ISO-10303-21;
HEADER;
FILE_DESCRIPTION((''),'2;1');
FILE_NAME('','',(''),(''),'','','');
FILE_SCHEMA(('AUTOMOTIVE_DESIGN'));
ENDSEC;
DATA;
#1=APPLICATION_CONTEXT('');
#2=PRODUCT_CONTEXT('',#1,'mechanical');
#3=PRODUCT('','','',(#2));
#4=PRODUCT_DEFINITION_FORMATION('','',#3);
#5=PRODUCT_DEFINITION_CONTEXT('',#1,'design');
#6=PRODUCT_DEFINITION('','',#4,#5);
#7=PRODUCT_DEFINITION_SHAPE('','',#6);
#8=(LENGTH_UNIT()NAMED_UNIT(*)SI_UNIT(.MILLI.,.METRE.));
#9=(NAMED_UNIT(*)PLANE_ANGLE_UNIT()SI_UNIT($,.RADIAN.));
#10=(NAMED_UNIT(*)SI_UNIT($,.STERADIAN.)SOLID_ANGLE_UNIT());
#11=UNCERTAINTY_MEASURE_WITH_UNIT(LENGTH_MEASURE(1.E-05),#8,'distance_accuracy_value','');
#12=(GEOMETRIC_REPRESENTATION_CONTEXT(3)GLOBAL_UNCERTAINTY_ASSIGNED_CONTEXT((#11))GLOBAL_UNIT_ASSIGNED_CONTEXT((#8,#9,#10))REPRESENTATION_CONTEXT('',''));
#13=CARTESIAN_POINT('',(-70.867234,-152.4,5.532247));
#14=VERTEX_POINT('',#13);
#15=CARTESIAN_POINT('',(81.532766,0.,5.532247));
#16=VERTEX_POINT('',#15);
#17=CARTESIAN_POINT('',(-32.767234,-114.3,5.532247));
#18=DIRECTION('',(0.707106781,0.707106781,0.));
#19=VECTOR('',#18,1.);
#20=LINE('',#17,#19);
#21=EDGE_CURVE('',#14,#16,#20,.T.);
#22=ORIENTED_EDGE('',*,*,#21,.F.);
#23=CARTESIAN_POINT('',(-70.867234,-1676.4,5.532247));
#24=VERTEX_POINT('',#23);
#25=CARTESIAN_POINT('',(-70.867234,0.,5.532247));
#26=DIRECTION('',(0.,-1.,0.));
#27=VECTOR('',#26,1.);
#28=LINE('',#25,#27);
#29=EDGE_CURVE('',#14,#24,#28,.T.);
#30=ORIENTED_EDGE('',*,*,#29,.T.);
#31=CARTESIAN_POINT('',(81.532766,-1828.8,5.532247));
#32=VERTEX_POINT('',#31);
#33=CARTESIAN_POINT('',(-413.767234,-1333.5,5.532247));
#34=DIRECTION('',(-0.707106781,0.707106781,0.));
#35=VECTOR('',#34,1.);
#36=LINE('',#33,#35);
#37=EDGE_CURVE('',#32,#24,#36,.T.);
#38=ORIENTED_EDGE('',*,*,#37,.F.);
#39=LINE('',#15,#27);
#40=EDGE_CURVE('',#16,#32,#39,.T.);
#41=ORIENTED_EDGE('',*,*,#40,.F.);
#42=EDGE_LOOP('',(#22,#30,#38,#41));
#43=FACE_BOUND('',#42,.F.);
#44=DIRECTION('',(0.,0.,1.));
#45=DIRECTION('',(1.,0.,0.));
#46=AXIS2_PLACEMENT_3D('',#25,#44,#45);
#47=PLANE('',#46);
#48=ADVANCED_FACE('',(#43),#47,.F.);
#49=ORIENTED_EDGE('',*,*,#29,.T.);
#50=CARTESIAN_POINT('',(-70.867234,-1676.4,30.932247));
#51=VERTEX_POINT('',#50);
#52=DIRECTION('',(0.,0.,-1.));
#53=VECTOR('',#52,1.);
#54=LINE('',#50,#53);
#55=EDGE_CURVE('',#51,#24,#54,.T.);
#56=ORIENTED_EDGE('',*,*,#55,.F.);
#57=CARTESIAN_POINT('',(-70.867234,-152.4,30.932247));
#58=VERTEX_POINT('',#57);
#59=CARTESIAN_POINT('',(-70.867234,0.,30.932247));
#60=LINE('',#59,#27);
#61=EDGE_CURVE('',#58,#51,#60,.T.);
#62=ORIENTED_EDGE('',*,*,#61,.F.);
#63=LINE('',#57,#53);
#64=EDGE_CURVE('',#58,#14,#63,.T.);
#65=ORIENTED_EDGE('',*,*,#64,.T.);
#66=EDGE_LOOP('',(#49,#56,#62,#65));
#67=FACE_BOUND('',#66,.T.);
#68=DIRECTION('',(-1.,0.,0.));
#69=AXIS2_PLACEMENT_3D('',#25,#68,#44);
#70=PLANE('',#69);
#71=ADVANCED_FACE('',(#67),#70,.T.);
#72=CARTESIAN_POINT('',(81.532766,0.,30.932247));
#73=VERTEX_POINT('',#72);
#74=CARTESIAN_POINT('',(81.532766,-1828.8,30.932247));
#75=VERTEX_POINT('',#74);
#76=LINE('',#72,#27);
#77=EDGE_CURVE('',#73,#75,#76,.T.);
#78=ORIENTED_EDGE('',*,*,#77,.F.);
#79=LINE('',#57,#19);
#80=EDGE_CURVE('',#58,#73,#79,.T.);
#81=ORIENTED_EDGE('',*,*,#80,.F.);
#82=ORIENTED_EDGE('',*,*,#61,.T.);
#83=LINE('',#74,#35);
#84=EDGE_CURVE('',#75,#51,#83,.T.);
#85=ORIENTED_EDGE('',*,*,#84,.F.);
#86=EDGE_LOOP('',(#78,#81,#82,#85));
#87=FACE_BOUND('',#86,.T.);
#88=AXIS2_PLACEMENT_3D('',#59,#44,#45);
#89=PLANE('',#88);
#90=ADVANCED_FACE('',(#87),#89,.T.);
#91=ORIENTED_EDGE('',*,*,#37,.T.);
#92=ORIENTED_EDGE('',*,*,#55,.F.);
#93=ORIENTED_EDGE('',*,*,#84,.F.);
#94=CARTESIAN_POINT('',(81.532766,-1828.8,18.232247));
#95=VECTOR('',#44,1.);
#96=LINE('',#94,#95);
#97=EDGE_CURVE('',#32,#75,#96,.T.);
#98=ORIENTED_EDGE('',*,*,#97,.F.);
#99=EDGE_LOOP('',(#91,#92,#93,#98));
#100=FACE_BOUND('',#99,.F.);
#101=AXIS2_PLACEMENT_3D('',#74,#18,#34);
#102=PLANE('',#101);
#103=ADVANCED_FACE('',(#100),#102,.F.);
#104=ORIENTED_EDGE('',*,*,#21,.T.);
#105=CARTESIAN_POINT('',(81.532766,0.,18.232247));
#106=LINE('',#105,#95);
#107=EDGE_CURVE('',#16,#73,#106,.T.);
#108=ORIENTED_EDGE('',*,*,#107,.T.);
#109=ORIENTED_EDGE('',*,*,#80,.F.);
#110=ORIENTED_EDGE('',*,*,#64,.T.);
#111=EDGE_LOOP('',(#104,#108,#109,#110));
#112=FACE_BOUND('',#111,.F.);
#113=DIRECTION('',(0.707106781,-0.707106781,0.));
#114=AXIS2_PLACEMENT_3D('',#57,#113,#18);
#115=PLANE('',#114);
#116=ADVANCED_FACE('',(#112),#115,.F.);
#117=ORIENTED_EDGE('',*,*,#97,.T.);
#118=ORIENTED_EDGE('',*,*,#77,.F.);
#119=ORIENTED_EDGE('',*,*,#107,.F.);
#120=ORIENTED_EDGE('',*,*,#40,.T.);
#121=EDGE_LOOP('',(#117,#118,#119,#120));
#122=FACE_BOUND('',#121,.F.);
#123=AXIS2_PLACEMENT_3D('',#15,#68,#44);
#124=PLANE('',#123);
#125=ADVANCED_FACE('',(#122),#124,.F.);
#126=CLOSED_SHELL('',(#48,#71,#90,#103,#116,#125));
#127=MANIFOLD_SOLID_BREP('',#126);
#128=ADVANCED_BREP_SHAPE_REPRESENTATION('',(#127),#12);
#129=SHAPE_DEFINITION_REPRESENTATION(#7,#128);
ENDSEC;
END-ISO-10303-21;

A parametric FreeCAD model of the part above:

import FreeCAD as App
import Part
import Sketcher

V = App.Vector
Q = App.Units.Quantity

doc = App.newDocument("Part")
params = doc.addObject("Spreadsheet::Sheet", "Params")
for row, (alias, value) in enumerate([
    ("sketch1_width", "6 in"),
    ("sketch1_height", "1 in"),
    ("pad1_length", "72 in"),
    ("sketch2_width", "6 in"),
    ("pocket1_length", "7.2 in"),
], start=1):
    params.set(f"A{row}", alias)
    params.set(f"B{row}", "=" + value)
    params.setAlias(f"B{row}", alias)

body = doc.addObject("PartDesign::Body", "Body")

# Sketch on XZ plane
sketch1 = body.newObject("Sketcher::SketchObject", "Sketch")
sketch1.AttachmentSupport = (doc.getObject("XZ_Plane"), [""])
sketch1.MapMode = "FlatFace"
sketch1.addGeometry(Part.LineSegment(V(-71, 31, 0), V(-71, 6, 0)), False)
sketch1.addGeometry(Part.LineSegment(V(-71, 6, 0), V(82, 6, 0)), False)
sketch1.addGeometry(Part.LineSegment(V(82, 6, 0), V(82, 31, 0)), False)
sketch1.addGeometry(Part.LineSegment(V(82, 31, 0), V(-71, 31, 0)), False)
sketch1.addConstraint(Sketcher.Constraint("Coincident", 0, 2, 1, 1))
sketch1.addConstraint(Sketcher.Constraint("Coincident", 1, 2, 2, 1))
sketch1.addConstraint(Sketcher.Constraint("Coincident", 2, 2, 3, 1))
sketch1.addConstraint(Sketcher.Constraint("Coincident", 3, 2, 0, 1))
sketch1.addConstraint(Sketcher.Constraint("Vertical", 0))
sketch1.addConstraint(Sketcher.Constraint("Horizontal", 1))
sketch1.addConstraint(Sketcher.Constraint("Vertical", 2))
sketch1.addConstraint(Sketcher.Constraint("Horizontal", 3))
sketch1.addConstraint(Sketcher.Constraint("DistanceX", 1, 1, 1, 2, Q("6 in")))
sketch1.addConstraint(Sketcher.Constraint("DistanceY", 0, 2, 0, 1, Q("1 in")))
sketch1.addConstraint(Sketcher.Constraint("DistanceX", 0, 2, -1, 1, 70.867234))
sketch1.addConstraint(Sketcher.Constraint("DistanceY", -1, 1, 0, 2, 5.532247))
sketch1.setExpression("Constraints[8]", "Params.sketch1_width")
sketch1.setExpression("Constraints[9]", "Params.sketch1_height")
pad1 = body.newObject("PartDesign::Pad", "Pad")
pad1.Profile = sketch1
pad1.setExpression("Length", "Params.pad1_length")

# Sketch on XY plane
sketch2 = body.newObject("Sketcher::SketchObject", "Sketch001")
sketch2.AttachmentSupport = (doc.getObject("XY_Plane"), [""])
sketch2.MapMode = "FlatFace"
sketch2.AttachmentOffset = App.Placement(V(0, 0, 30.932247), App.Rotation())
sketch2.addGeometry(Part.LineSegment(V(-71, -152, 0), V(82, 0, 0)), False)
sketch2.addGeometry(Part.LineSegment(V(82, 0, 0), V(-71, 0, 0)), False)
sketch2.addGeometry(Part.LineSegment(V(-71, 0, 0), V(-71, -152, 0)), False)
sketch2.addGeometry(Part.LineSegment(V(-71, -1829, 0), V(82, -1829, 0)), False)
sketch2.addGeometry(Part.LineSegment(V(82, -1829, 0), V(-71, -1676, 0)), False)
sketch2.addGeometry(Part.LineSegment(V(-71, -1676, 0), V(-71, -1829, 0)), False)
sketch2.addConstraint(Sketcher.Constraint("Coincident", 0, 2, 1, 1))
sketch2.addConstraint(Sketcher.Constraint("Coincident", 1, 2, 2, 1))
sketch2.addConstraint(Sketcher.Constraint("Coincident", 2, 2, 0, 1))
sketch2.addConstraint(Sketcher.Constraint("Coincident", 3, 2, 4, 1))
sketch2.addConstraint(Sketcher.Constraint("Coincident", 4, 2, 5, 1))
sketch2.addConstraint(Sketcher.Constraint("Coincident", 5, 2, 3, 1))
sketch2.addConstraint(Sketcher.Constraint("Horizontal", 1))
sketch2.addConstraint(Sketcher.Constraint("Vertical", 2))
sketch2.addConstraint(Sketcher.Constraint("Horizontal", 3))
sketch2.addConstraint(Sketcher.Constraint("Vertical", 5))
sketch2.addConstraint(Sketcher.Constraint("PointOnObject", 0, 2, -1))
sketch2.addConstraint(Sketcher.Constraint("Perpendicular", 0, 4))
sketch2.addConstraint(Sketcher.Constraint("Vertical", 0, 2, 3, 2))
sketch2.addConstraint(Sketcher.Constraint("Vertical", 2, 2, 4, 2))
sketch2.addConstraint(Sketcher.Constraint("Equal", 3, 2))
sketch2.addConstraint(Sketcher.Constraint("DistanceX", 1, 2, 1, 1, Q("6 in")))
sketch2.addConstraint(Sketcher.Constraint("DistanceY", 3, 2, -1, 1, Q("72 in")))
sketch2.addConstraint(Sketcher.Constraint("DistanceX", -1, 1, 0, 2, 81.532766))
sketch2.setExpression("Constraints[15]", "Params.sketch2_width")
pocket1 = body.newObject("PartDesign::Pocket", "Pocket")
pocket1.Profile = sketch2
pocket1.setExpression("Length", "Params.pocket1_length")

doc.recompute()
